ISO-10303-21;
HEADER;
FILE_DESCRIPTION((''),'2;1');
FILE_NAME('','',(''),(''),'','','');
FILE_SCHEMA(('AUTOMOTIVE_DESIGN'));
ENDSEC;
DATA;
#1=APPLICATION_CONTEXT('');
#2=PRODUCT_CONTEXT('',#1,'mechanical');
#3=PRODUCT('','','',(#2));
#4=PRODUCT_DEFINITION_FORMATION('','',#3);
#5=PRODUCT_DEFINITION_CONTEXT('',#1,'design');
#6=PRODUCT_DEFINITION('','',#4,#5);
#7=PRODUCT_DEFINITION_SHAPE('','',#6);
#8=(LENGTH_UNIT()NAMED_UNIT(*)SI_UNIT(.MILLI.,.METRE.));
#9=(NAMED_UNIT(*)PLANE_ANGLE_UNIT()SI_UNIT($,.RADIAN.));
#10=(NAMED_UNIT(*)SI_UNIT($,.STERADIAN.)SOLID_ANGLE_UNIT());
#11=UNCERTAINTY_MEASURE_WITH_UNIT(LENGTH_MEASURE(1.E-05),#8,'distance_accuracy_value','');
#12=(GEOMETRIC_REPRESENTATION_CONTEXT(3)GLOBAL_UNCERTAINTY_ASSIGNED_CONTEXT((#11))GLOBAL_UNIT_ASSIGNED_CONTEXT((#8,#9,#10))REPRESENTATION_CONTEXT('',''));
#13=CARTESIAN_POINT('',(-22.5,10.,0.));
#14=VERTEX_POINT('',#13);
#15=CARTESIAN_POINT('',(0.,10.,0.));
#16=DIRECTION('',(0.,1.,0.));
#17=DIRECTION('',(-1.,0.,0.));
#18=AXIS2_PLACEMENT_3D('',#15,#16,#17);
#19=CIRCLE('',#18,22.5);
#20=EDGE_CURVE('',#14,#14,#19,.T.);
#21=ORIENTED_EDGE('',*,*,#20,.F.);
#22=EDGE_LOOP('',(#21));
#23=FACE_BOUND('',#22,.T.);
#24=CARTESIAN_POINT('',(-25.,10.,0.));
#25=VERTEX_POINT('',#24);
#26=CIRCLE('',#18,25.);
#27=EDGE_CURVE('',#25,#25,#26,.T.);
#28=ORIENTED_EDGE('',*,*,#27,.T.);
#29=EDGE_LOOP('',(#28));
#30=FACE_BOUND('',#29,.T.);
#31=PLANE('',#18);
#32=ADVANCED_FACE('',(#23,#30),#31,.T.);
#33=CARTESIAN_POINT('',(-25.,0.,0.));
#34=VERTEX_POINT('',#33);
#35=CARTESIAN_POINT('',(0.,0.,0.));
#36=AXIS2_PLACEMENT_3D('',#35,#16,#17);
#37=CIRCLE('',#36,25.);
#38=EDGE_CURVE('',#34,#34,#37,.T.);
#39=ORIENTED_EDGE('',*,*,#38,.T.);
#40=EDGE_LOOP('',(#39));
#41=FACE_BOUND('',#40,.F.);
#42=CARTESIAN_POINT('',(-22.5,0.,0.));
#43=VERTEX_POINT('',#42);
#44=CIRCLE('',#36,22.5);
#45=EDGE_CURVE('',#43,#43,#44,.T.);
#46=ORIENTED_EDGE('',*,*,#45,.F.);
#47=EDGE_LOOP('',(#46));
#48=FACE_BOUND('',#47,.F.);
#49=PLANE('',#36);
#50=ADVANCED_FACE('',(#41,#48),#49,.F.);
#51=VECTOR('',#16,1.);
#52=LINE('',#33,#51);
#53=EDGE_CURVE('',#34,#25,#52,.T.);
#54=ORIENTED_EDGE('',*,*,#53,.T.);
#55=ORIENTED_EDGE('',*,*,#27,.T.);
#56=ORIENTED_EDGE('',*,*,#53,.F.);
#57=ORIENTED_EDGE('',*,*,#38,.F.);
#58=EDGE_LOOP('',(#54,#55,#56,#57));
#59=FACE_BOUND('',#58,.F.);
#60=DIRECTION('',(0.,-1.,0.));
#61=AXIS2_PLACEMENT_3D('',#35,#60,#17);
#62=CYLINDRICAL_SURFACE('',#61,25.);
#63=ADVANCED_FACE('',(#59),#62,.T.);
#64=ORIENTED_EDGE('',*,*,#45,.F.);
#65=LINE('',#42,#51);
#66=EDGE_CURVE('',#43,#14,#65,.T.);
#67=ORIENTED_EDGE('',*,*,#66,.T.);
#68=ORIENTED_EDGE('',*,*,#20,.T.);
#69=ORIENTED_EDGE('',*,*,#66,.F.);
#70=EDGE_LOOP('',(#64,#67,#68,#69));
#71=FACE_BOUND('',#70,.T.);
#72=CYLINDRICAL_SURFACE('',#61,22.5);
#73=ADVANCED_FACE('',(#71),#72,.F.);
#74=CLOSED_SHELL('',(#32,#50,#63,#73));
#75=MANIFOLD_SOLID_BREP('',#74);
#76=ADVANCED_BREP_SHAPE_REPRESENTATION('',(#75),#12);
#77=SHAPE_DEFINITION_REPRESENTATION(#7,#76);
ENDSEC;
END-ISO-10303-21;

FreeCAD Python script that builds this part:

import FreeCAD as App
import Part
import Sketcher

doc = App.newDocument("Part")
body = doc.addObject("PartDesign::Body", "Body")

# Sketch on XZ plane
sketch1 = body.newObject("Sketcher::SketchObject", "Sketch")
sketch1.AttachmentSupport = (doc.getObject("XZ_Plane"), [""])
sketch1.MapMode = "FlatFace"
sketch1.addGeometry(Part.Circle(App.Vector(0, 0, 0), App.Vector(0, 0, 1), 25), False)
sketch1.addGeometry(Part.Circle(App.Vector(0, 0, 0), App.Vector(0, 0, 1), 22), False)
sketch1.addConstraint(Sketcher.Constraint("Coincident", 0, 3, -1, 1))
sketch1.addConstraint(Sketcher.Constraint("Coincident", 1, 3, -1, 1))
sketch1.addConstraint(Sketcher.Constraint("Diameter", 0, 50.0))
sketch1.addConstraint(Sketcher.Constraint("Diameter", 1, 45.0))
pad1 = body.newObject("PartDesign::Pad", "Pad")
pad1.Profile = sketch1
pad1.Length = 10
pad1.Reversed = True

doc.recompute()
